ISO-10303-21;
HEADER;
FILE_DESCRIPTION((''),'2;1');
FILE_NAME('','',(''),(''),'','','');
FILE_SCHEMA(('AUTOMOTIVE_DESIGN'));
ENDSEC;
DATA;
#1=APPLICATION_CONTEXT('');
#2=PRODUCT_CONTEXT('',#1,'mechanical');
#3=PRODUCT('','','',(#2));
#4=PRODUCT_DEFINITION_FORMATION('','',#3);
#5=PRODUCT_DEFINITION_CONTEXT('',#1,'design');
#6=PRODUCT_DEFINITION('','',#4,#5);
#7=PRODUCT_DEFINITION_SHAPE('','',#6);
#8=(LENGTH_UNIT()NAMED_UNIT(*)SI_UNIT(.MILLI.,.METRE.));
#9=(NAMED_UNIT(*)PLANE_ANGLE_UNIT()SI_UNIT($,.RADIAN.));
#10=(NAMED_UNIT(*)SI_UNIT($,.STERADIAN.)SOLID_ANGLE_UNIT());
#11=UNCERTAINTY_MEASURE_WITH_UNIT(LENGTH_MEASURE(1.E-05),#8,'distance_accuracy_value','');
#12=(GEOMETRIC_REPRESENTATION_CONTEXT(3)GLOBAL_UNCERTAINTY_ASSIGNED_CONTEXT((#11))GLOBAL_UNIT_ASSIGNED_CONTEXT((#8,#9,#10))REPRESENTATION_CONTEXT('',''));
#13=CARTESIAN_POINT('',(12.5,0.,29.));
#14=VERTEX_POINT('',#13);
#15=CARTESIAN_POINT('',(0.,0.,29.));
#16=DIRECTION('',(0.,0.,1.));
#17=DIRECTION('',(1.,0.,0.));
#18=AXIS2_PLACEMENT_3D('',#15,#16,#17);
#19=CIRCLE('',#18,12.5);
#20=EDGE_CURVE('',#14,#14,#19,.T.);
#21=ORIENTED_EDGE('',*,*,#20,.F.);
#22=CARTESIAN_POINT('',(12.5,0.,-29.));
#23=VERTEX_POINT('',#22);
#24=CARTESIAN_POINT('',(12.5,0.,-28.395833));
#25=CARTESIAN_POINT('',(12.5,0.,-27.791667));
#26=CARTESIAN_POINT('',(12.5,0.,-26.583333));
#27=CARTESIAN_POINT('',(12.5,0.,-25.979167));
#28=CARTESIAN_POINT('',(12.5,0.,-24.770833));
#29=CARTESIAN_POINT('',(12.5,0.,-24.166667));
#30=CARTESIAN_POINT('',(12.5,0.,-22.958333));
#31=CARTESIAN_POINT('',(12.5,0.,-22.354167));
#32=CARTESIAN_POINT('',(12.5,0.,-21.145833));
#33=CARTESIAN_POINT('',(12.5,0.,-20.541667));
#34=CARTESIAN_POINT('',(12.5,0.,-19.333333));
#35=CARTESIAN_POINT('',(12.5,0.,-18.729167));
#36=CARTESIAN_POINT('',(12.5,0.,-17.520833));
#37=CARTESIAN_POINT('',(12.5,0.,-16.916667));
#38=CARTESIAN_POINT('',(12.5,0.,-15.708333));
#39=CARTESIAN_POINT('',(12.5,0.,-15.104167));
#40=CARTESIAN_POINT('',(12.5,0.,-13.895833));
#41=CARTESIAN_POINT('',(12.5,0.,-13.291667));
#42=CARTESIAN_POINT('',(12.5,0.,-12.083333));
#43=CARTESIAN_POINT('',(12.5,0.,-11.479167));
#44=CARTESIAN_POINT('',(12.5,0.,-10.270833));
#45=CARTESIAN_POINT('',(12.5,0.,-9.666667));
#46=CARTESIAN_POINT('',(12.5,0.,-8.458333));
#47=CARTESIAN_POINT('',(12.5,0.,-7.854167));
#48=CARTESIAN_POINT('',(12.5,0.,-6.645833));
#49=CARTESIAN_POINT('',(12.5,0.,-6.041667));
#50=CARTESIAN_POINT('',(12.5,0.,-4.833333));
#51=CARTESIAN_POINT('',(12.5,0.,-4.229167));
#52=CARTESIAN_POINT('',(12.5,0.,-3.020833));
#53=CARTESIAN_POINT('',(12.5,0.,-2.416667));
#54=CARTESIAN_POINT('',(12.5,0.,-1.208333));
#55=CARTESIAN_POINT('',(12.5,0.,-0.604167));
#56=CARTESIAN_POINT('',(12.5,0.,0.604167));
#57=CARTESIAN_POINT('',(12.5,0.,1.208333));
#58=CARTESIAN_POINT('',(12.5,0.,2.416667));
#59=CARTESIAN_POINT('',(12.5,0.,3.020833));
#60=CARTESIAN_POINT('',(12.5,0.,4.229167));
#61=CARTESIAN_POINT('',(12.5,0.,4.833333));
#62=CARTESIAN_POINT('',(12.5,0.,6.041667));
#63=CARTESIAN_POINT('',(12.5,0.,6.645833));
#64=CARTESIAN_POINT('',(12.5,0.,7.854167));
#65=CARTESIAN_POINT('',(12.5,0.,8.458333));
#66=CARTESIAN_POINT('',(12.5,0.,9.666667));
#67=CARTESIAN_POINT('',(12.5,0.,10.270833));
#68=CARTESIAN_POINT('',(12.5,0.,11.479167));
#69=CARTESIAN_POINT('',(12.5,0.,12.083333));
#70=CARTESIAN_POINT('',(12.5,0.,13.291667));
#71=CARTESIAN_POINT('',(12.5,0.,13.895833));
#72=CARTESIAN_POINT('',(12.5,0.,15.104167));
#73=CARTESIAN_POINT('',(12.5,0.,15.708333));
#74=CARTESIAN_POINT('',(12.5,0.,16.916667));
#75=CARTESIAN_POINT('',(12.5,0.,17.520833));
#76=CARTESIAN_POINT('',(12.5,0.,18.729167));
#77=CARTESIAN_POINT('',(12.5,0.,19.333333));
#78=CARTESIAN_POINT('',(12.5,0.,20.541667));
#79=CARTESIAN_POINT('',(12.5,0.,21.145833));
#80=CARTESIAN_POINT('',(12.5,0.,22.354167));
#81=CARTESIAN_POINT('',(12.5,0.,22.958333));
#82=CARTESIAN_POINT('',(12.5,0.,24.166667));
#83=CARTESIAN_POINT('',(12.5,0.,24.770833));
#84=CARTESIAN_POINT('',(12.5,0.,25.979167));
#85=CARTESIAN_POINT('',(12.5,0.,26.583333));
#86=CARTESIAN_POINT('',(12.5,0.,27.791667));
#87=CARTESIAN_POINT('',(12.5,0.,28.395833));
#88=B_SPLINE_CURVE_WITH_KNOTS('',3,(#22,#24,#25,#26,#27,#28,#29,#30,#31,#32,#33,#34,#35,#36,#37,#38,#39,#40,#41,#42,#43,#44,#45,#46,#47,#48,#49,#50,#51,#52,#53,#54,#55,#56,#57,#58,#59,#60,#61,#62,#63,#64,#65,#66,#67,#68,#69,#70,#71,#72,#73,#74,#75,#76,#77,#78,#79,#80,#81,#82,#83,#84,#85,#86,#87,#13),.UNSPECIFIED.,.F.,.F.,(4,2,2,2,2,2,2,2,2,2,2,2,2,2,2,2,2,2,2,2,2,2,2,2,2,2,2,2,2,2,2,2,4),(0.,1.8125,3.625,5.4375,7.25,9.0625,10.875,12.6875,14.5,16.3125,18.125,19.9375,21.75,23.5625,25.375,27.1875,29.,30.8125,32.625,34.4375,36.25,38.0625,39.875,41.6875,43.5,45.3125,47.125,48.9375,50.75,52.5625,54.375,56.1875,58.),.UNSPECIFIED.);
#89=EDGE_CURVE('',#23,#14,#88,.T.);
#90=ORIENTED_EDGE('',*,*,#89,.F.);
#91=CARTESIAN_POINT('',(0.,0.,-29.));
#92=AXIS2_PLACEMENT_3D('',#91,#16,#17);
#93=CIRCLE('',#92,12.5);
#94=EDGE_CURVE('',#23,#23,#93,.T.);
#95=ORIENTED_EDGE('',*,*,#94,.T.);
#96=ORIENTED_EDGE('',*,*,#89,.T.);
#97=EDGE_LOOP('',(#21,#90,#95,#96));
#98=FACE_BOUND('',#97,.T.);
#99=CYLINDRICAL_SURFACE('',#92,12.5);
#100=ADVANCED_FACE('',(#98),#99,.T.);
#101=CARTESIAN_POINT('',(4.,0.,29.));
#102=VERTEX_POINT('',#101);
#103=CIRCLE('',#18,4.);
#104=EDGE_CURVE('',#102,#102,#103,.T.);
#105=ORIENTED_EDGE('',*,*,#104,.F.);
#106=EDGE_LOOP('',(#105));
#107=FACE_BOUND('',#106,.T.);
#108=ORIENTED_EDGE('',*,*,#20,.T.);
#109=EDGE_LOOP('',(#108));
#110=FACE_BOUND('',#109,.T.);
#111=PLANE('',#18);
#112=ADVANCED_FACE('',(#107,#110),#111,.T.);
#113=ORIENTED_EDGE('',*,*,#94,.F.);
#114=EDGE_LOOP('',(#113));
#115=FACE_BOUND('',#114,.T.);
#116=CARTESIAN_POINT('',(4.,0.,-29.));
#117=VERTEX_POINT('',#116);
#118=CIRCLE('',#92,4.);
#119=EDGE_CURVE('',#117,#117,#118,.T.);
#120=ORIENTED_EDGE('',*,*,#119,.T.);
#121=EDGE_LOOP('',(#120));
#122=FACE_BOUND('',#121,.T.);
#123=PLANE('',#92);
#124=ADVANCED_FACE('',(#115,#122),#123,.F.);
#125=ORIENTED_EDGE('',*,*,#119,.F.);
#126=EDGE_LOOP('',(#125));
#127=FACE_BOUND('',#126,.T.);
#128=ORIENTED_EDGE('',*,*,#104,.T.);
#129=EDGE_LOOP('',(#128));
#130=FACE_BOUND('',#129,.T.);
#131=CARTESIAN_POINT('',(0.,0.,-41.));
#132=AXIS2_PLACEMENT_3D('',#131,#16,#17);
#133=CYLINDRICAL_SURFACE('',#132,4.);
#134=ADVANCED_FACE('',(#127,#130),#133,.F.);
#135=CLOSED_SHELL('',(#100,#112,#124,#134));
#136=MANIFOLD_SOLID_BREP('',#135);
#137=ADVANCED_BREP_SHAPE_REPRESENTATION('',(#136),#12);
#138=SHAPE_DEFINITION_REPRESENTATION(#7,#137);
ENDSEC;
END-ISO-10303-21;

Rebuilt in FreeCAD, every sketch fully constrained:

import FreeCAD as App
import Part
import Sketcher
from FreeCAD import Vector

doc = App.newDocument("Part")
body = doc.addObject("PartDesign::Body", "Body")

sketch1 = body.newObject("Sketcher::SketchObject", "Sketch")
sketch1.AttachmentSupport = (doc.getObject("XY_Plane"), [""])
sketch1.MapMode = "FlatFace"
sketch1.addGeometry(Part.Circle(Vector(0, 0, 0), Vector(0, 0, 1), 12), False)
sketch1.addConstraint(Sketcher.Constraint("Coincident", 0, 3, -1, 1))
sketch1.addConstraint(Sketcher.Constraint("Diameter", 0, 25.0))
pad1 = body.newObject("PartDesign::Pad", "Pad")
pad1.Profile = sketch1
pad1.Length = 58
pad1.Midplane = True

sketch2 = body.newObject("Sketcher::SketchObject", "Sketch001")
sketch2.AttachmentSupport = (doc.getObject("XY_Plane"), [""])
sketch2.MapMode = "FlatFace"
sketch2.AttachmentOffset = App.Placement(Vector(0, 0, 29), App.Rotation())
sketch2.addGeometry(Part.Circle(Vector(0, 0, 0), Vector(0, 0, 1), 4), False)
sketch2.addConstraint(Sketcher.Constraint("Coincident", 0, 3, -1, 1))
sketch2.addConstraint(Sketcher.Constraint("Diameter", 0, 8.0))
pocket1 = body.newObject("PartDesign::Pocket", "Pocket")
pocket1.Profile = sketch2
pocket1.Length = 70

doc.recompute()
